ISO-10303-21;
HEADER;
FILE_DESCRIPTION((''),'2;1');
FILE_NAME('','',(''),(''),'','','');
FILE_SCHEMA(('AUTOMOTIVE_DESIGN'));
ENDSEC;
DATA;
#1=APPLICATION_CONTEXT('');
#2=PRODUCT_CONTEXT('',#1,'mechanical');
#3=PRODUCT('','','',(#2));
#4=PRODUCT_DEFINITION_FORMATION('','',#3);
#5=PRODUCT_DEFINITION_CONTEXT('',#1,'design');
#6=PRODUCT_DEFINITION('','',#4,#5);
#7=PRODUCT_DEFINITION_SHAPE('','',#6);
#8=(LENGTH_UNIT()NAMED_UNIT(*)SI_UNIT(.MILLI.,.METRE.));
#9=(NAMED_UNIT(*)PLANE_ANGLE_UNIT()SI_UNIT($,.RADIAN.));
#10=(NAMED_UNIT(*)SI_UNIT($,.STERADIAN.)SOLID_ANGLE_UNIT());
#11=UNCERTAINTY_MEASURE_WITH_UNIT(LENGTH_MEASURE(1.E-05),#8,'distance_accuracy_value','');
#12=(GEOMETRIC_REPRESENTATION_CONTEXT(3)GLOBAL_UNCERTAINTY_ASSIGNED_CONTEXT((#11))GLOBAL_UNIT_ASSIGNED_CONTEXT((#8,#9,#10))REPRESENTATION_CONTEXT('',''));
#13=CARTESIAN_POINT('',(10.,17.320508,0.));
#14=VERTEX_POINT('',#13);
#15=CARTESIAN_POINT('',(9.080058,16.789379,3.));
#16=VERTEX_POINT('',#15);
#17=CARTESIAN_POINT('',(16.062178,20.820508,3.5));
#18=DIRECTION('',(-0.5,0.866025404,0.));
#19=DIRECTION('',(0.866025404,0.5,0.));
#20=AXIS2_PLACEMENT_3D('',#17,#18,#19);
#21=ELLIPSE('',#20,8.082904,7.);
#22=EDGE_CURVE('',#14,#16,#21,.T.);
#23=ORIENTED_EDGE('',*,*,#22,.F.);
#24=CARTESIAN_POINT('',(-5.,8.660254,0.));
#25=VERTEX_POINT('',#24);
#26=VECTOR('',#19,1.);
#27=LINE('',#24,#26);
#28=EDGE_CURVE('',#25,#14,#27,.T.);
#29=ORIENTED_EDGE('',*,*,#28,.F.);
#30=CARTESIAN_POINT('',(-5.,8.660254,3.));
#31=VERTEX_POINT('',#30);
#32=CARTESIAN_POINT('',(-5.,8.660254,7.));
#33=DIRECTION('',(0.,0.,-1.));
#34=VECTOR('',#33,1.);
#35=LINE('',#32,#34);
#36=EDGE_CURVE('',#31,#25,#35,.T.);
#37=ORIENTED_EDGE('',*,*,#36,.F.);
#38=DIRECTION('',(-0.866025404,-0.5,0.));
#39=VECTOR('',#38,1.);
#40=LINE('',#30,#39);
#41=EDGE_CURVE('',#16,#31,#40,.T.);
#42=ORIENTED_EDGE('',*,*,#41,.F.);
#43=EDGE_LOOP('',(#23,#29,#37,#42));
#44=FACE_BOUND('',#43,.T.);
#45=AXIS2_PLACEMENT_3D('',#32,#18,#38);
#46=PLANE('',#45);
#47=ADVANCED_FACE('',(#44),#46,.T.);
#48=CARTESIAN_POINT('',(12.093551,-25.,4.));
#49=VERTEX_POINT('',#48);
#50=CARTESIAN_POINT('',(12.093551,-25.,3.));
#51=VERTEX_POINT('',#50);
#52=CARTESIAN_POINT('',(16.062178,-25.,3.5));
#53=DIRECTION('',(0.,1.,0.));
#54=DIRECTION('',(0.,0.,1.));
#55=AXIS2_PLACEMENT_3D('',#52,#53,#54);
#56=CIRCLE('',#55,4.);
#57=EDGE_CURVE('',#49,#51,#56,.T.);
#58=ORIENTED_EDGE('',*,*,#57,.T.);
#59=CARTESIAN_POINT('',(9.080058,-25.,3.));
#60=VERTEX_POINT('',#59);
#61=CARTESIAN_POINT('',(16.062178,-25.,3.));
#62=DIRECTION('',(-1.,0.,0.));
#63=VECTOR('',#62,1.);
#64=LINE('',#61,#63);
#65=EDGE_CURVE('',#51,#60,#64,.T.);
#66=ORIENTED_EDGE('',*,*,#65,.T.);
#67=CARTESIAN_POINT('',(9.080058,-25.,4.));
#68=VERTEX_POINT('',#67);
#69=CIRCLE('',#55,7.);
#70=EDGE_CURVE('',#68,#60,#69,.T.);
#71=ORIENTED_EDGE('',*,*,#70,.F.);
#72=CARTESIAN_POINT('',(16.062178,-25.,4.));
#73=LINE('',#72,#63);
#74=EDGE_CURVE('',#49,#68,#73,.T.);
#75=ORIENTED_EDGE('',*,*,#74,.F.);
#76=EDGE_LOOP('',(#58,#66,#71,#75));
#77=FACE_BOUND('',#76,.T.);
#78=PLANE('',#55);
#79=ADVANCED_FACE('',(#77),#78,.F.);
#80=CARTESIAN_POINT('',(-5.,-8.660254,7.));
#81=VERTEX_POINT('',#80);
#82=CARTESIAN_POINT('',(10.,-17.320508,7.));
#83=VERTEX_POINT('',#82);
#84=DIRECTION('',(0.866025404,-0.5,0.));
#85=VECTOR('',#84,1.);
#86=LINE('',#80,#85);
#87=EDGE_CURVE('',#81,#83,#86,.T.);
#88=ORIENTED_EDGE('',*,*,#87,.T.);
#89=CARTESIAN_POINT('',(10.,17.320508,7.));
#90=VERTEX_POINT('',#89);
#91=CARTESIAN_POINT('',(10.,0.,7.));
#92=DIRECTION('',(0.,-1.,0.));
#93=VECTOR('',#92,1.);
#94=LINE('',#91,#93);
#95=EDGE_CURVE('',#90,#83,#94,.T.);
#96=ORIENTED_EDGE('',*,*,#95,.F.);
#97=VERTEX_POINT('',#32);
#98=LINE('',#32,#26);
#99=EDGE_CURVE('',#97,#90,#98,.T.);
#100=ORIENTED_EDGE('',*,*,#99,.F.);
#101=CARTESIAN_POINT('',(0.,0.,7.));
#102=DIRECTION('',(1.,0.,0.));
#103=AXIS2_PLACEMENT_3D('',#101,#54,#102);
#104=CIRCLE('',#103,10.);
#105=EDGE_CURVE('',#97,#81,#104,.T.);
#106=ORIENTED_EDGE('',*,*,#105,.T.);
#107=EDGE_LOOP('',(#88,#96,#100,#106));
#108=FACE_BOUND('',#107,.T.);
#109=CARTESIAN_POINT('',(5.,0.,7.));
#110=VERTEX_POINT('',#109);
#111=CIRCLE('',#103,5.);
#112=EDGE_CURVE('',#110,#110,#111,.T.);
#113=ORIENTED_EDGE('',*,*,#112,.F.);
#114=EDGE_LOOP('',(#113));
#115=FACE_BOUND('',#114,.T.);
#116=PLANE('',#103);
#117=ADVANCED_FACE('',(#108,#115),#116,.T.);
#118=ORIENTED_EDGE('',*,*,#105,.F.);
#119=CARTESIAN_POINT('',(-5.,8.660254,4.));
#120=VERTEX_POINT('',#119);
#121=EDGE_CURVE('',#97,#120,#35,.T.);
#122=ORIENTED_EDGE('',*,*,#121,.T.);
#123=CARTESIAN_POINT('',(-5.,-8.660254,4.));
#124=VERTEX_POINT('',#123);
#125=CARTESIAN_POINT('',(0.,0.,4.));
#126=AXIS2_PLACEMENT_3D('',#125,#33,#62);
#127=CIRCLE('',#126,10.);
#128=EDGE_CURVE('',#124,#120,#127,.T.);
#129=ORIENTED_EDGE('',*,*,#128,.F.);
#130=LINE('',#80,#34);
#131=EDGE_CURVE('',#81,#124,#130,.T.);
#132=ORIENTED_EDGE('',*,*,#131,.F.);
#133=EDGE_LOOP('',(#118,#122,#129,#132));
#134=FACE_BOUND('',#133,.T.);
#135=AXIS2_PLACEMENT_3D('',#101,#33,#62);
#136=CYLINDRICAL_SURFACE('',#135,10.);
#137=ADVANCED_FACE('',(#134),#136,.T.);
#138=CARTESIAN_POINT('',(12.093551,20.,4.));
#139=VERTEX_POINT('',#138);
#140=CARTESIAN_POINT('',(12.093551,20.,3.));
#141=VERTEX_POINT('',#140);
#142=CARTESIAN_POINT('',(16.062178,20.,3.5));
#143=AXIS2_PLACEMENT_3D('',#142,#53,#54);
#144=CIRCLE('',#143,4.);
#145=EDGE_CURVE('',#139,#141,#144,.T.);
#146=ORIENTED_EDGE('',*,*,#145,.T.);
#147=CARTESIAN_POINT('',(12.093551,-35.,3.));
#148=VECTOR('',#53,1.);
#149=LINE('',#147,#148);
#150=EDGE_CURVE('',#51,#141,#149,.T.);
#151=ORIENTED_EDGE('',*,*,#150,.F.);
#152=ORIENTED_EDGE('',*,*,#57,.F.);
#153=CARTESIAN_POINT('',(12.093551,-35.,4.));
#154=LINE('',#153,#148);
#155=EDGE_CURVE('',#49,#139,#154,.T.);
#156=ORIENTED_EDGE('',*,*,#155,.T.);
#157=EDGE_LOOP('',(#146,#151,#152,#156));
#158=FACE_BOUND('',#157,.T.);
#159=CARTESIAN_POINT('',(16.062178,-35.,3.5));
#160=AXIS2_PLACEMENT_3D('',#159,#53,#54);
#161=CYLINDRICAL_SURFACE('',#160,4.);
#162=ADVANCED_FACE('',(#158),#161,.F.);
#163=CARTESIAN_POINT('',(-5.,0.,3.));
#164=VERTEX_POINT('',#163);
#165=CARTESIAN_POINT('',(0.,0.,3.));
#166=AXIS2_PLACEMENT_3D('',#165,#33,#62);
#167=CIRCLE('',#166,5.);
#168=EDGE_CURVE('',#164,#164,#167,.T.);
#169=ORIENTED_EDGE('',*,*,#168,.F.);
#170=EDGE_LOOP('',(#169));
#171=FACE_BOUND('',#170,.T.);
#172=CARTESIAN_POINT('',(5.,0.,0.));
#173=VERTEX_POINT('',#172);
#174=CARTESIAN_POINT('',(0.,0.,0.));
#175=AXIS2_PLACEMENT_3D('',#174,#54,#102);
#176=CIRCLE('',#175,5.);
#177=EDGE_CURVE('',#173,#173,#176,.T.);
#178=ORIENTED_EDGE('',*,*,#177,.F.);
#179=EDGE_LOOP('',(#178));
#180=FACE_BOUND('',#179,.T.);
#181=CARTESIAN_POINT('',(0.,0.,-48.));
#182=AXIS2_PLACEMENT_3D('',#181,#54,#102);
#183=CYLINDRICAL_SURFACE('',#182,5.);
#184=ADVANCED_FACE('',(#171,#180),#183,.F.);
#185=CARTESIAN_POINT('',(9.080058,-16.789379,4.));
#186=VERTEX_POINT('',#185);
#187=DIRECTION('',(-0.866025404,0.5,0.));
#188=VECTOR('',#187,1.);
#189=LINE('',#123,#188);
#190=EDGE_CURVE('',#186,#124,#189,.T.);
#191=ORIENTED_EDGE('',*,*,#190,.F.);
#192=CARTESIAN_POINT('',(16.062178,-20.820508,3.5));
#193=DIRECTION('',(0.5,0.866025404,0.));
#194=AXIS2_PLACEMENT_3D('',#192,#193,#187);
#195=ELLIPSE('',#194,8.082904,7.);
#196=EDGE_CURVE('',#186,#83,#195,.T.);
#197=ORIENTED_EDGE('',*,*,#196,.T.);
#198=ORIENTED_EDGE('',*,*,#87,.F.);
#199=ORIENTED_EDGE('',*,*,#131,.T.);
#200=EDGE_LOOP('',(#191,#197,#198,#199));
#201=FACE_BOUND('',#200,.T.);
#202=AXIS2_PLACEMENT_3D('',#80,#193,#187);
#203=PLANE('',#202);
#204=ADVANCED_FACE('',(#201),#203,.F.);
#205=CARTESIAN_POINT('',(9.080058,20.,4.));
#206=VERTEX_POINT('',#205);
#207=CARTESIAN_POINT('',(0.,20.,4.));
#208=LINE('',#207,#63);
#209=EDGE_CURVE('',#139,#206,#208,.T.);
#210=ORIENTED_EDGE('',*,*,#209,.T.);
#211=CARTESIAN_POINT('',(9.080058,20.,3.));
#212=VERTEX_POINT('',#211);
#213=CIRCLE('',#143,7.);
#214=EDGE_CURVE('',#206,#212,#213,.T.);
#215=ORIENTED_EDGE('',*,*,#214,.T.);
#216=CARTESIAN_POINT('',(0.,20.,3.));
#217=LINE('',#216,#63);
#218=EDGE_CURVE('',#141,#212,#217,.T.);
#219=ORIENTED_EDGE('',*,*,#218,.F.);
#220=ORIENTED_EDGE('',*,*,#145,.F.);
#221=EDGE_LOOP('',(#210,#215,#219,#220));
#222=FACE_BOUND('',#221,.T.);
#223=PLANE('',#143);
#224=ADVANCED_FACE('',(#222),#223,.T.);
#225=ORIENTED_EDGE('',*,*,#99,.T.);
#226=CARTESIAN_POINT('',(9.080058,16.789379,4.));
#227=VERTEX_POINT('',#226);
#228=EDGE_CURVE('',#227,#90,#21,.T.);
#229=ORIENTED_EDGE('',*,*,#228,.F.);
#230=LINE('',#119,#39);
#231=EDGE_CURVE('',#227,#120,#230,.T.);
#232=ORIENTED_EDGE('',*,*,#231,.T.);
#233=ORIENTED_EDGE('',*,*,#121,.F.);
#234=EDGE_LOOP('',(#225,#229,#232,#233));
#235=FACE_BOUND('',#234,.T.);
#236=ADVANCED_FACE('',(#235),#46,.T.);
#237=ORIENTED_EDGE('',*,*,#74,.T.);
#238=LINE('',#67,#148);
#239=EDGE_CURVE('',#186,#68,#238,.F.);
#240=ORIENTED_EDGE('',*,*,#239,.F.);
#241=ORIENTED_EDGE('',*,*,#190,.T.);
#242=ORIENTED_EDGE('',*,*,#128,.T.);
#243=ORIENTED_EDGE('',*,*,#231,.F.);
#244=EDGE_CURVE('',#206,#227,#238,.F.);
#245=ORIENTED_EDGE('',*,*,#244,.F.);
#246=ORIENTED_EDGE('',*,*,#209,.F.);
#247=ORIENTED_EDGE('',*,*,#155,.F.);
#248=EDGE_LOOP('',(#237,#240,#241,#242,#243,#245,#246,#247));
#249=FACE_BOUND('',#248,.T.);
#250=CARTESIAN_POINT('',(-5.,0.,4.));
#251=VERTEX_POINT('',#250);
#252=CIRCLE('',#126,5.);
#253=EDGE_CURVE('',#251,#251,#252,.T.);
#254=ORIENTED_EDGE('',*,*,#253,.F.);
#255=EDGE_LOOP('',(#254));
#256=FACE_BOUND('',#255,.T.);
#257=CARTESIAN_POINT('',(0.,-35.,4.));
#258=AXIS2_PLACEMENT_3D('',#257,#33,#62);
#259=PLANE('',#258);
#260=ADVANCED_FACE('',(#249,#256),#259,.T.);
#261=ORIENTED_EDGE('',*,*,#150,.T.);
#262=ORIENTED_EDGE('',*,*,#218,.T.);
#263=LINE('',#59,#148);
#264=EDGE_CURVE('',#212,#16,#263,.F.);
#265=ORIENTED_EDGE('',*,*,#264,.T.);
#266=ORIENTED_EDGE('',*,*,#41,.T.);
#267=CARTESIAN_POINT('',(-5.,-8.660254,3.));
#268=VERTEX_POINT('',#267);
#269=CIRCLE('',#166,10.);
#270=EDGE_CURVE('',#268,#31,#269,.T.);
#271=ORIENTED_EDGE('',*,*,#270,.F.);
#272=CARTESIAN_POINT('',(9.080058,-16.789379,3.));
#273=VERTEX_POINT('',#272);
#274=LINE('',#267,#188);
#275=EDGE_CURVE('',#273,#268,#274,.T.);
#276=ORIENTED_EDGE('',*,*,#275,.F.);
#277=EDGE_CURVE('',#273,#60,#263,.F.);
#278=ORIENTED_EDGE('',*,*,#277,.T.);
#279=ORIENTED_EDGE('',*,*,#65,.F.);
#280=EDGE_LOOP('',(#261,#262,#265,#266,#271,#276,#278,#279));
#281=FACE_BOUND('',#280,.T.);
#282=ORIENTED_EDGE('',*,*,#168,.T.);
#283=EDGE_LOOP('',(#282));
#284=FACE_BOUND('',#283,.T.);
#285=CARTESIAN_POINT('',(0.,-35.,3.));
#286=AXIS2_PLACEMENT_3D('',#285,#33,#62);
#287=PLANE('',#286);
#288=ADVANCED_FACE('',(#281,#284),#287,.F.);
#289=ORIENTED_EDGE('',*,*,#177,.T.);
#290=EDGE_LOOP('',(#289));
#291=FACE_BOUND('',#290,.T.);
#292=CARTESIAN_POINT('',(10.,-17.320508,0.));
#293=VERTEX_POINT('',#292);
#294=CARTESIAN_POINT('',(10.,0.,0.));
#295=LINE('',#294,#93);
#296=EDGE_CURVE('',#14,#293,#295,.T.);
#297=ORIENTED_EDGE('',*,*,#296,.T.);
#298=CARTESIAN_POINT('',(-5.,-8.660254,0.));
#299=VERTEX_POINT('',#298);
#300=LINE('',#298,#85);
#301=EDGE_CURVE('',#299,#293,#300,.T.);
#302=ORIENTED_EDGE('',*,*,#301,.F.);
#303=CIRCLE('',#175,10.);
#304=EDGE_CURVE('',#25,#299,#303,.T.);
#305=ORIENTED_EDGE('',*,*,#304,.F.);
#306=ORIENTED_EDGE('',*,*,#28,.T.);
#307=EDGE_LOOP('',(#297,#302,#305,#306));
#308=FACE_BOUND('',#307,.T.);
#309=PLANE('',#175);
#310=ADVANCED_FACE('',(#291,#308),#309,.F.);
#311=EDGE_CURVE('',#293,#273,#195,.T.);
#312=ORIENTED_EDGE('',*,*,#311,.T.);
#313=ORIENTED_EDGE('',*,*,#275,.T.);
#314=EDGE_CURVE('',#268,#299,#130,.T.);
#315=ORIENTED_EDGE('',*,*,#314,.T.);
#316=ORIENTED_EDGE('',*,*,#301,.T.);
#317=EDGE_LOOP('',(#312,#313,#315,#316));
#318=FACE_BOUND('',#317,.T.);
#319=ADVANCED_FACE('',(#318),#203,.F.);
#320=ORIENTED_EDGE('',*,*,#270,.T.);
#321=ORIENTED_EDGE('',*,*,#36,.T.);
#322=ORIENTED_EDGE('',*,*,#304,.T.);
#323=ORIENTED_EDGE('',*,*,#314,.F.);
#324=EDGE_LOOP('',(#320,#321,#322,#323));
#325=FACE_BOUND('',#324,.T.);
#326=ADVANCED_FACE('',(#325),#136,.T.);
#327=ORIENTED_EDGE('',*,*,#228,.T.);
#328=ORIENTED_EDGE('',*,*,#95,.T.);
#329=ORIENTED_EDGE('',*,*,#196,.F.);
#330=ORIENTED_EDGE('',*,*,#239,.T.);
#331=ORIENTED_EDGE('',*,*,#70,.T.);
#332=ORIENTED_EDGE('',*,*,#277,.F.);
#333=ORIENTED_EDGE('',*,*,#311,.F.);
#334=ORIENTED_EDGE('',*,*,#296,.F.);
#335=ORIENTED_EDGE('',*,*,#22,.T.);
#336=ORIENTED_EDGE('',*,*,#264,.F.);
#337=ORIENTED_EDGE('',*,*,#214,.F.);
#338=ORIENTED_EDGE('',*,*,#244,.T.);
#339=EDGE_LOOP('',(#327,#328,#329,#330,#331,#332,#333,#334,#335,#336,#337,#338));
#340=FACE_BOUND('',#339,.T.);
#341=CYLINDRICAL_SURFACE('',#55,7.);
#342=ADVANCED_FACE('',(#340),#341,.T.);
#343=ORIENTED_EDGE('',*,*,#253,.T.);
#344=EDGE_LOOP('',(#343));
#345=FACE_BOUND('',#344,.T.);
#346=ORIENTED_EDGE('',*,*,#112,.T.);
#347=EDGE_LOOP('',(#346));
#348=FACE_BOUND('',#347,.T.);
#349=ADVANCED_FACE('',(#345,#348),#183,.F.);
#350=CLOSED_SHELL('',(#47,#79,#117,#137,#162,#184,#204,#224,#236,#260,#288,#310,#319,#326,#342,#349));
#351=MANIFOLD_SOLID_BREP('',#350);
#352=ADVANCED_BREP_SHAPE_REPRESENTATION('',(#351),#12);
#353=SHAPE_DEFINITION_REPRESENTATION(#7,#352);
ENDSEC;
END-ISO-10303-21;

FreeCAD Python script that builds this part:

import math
import FreeCAD as App
import Part
import Sketcher
Q = App.Units.Quantity

doc = App.newDocument("Part")
body = doc.addObject("PartDesign::Body", "Body")

# Sketch on XY plane
sketch1 = doc.addObject("Sketcher::SketchObject", "Sketch")
body.addObject(sketch1)
sketch1.AttachmentSupport = (doc.XY_Plane, [""])
sketch1.MapMode = "FlatFace"
sketch1.addGeometry([
    Part.ArcOfCircle(Part.Circle(App.Vector(0, 0, 0), App.Vector(0, 0, 1), 10), math.radians(120), math.radians(240)),
    Part.LineSegment(App.Vector(-5, -9, 0), App.Vector(10, -17, 0)),
    Part.LineSegment(App.Vector(10, -17, 0), App.Vector(10, 17, 0)),
    Part.LineSegment(App.Vector(10, 17, 0), App.Vector(-5, 9, 0)),
], False)
sketch1.addConstraint([
    Sketcher.Constraint("Tangent", 0, 2, 1, 1),
    Sketcher.Constraint("Coincident", 1, 2, 2, 1),
    Sketcher.Constraint("Coincident", 2, 2, 3, 1),
    Sketcher.Constraint("Tangent", 3, 2, 0, 1),
    Sketcher.Constraint("Vertical", 2),
    Sketcher.Constraint("Coincident", 0, 3, -1, 1),
    Sketcher.Constraint("Vertical", 0, 2, 3, 2),
    Sketcher.Constraint("Radius", 0, Q("10 mm")),
    Sketcher.Constraint("Angle", 1, Q("-30 deg")),
    Sketcher.Constraint("DistanceX", -1, 1, 1, 2, Q("10 mm")),
])
pad1 = doc.addObject("PartDesign::Pad", "Pad")
body.addObject(pad1)
pad1.Profile = sketch1
pad1.Length = 7

# Sketch on XZ plane
sketch2 = doc.addObject("Sketcher::SketchObject", "Sketch001")
body.addObject(sketch2)
sketch2.AttachmentSupport = (doc.XZ_Plane, [""])
sketch2.MapMode = "FlatFace"
sketch2.addGeometry(Part.Circle(App.Vector(16, 4, 0), App.Vector(0, 0, 1), 7), False)
sketch2.addConstraint([
    Sketcher.Constraint("Diameter", 0, Q("14 mm")),
    Sketcher.Constraint("DistanceY", -1, 1, 0, 3, Q("3.5 mm")),
    Sketcher.Constraint("DistanceX", -1, 1, 0, 3, Q("16.062178 mm")),
])
pad2 = doc.addObject("PartDesign::Pad", "Pad001")
body.addObject(pad2)
pad2.Profile = sketch2
pad2.Type = "TwoLengths"
pad2.Length = 20
pad2.Length2 = 25
pad2.Reversed = True

# Sketch on XZ plane
sketch3 = doc.addObject("Sketcher::SketchObject", "Sketch002")
body.addObject(sketch3)
sketch3.AttachmentSupport = (doc.XZ_Plane, [""])
sketch3.MapMode = "FlatFace"
sketch3.AttachmentOffset = App.Placement(App.Vector(0, 0, -20), App.Rotation())
sketch3.addGeometry([
    Part.ArcOfCircle(Part.Circle(App.Vector(16.1, 3.5, 0), App.Vector(0, 0, 1), 4), math.radians(-173), math.radians(173)),
    Part.LineSegment(App.Vector(12.1, 3, 0), App.Vector(-10, 3, 0)),
    Part.LineSegment(App.Vector(-10, 3, 0), App.Vector(-10, 4, 0)),
    Part.LineSegment(App.Vector(-10, 4, 0), App.Vector(12.1, 4, 0)),
], False)
sketch3.addConstraint([
    Sketcher.Constraint("Coincident", 0, 1, 1, 1),
    Sketcher.Constraint("Coincident", 1, 2, 2, 1),
    Sketcher.Constraint("Coincident", 2, 2, 3, 1),
    Sketcher.Constraint("Coincident", 3, 2, 0, 2),
    Sketcher.Constraint("Horizontal", 1),
    Sketcher.Constraint("Vertical", 2),
    Sketcher.Constraint("Horizontal", 3),
    Sketcher.Constraint("Vertical", 0, 1, 3, 2),
    Sketcher.Constraint("Radius", 0, Q("4 mm")),
    Sketcher.Constraint("DistanceY", 2, 1, 2, 2, Q("1 mm")),
    Sketcher.Constraint("DistanceY", -1, 1, 0, 1, Q("3 mm")),
    Sketcher.Constraint("DistanceX", 1, 2, -1, 1, Q("10 mm")),
    Sketcher.Constraint("DistanceX", 1, 2, 1, 1, Q("22.093551 mm")),
])
pocket1 = doc.addObject("PartDesign::Pocket", "Pocket")
body.addObject(pocket1)
pocket1.Profile = sketch3
pocket1.Length = 55
pocket1.Reversed = True

# Sketch on XY plane
sketch4 = doc.addObject("Sketcher::SketchObject", "Sketch003")
body.addObject(sketch4)
sketch4.AttachmentSupport = (doc.XY_Plane, [""])
sketch4.MapMode = "FlatFace"
sketch4.AttachmentOffset = App.Placement(App.Vector(0, 0, 7), App.Rotation())
sketch4.addGeometry(Part.Circle(App.Vector(0, 0, 0), App.Vector(0, 0, 1), 5), False)
sketch4.addConstraint([
    Sketcher.Constraint("Coincident", 0, 3, -1, 1),
    Sketcher.Constraint("Diameter", 0, Q("10 mm")),
])
pocket2 = doc.addObject("PartDesign::Pocket", "Pocket001")
body.addObject(pocket2)
pocket2.Profile = sketch4
pocket2.Length = 55

doc.recompute()
